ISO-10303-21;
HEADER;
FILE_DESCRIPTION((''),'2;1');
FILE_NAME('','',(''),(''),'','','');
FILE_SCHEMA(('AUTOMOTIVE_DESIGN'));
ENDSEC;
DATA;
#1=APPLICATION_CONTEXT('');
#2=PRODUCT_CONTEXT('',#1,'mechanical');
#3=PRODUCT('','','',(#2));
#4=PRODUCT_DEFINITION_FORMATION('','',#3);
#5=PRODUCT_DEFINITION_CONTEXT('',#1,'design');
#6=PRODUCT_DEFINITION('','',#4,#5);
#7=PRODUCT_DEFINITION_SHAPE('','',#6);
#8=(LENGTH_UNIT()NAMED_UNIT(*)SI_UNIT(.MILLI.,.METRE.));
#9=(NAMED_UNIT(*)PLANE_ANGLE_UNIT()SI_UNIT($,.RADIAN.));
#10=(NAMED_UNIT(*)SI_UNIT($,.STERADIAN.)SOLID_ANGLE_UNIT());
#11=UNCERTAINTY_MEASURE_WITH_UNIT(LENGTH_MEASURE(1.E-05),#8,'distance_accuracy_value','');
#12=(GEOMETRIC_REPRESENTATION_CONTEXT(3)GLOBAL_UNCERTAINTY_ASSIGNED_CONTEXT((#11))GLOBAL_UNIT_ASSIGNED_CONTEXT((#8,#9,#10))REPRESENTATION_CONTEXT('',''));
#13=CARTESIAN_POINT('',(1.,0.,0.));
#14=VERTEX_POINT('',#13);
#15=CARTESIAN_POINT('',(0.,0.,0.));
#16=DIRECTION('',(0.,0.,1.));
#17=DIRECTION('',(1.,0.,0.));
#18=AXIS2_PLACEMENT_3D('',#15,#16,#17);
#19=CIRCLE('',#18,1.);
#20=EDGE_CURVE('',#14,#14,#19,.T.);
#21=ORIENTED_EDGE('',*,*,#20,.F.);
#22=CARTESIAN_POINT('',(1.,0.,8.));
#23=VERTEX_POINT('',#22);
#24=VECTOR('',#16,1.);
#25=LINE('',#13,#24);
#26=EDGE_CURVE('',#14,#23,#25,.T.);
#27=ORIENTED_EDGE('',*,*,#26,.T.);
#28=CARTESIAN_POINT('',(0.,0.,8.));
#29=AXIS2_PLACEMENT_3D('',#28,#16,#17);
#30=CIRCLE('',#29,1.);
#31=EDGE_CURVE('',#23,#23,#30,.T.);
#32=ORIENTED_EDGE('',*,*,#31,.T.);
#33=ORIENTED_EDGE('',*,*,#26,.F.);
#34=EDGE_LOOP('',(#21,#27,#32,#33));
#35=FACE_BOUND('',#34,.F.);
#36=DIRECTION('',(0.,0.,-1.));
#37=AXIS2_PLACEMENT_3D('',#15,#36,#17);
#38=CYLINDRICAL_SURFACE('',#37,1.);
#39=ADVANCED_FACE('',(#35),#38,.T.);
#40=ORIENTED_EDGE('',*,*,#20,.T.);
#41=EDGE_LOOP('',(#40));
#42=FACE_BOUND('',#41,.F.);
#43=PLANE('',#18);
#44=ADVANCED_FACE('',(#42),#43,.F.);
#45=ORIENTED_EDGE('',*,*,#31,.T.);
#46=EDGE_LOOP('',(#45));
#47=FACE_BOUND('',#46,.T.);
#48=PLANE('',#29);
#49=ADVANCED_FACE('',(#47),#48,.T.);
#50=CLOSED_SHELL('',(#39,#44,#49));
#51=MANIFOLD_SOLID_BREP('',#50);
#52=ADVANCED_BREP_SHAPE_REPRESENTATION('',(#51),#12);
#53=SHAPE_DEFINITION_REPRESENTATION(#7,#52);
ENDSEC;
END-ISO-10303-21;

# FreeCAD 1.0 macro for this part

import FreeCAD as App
import Part
import Sketcher
from FreeCAD import Vector
Q = App.Units.Quantity

doc = App.newDocument("Part")
body = doc.addObject("PartDesign::Body", "Body")

sketch1 = body.newObject("Sketcher::SketchObject", "Sketch")
sketch1.AttachmentSupport = (doc.getObject("XY_Plane"), [""])
sketch1.MapMode = "FlatFace"
sketch1.addGeometry(Part.Circle(Vector(0, 0, 0), Vector(0, 0, 1), 1), False)
sketch1.addConstraint([
    Sketcher.Constraint("Coincident", 0, 3, -1, 1),
    Sketcher.Constraint("Diameter", 0, Q("2 mm")),
])
pad1 = body.newObject("PartDesign::Pad", "Pad")
pad1.Profile = sketch1
pad1.Length = 8

doc.recompute()
